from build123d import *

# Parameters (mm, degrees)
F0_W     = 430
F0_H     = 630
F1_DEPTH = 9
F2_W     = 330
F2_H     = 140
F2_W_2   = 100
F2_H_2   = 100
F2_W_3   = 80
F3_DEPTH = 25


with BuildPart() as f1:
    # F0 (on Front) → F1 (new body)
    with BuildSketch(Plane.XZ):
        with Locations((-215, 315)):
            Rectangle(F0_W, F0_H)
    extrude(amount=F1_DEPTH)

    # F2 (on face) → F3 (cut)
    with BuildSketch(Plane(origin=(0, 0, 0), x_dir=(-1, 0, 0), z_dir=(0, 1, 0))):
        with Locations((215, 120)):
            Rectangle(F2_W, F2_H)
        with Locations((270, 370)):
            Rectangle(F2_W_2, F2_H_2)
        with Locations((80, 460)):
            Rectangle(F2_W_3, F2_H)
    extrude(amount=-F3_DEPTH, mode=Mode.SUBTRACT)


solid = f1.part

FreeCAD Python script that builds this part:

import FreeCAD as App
import Part
import Sketcher


def add_polygon(sketch, points):
    """Adds a closed chain of lines whose ends are joined by coincident constraints."""
    first, n = sketch.GeometryCount, len(points)
    for a, b in zip(points, points[1:] + points[:1]):
        sketch.addGeometry(Part.LineSegment(App.Vector(*a, 0), App.Vector(*b, 0)), False)
    for i in range(n):
        sketch.addConstraint(Sketcher.Constraint("Coincident", first + i, 2, first + (i + 1) % n, 1))

doc = App.newDocument("Part")
params = doc.addObject("Spreadsheet::Sheet", "Params")
for row, (alias, value) in enumerate([
    ("sketch1_width", "430 mm"),
    ("sketch1_height", "630 mm"),
    ("pad1_length", "9 mm"),
    ("sketch2_width", "330 mm"),
    ("sketch2_width2", "100 mm"),
    ("sketch2_width3", "80 mm"),
    ("sketch2_height", "140 mm"),
    ("pocket1_length", "25 mm"),
], start=1):
    params.set(f"A{row}", alias)
    params.set(f"B{row}", "=" + value)
    params.setAlias(f"B{row}", alias)

body = doc.addObject("PartDesign::Body", "Body")

sketch1 = body.newObject("Sketcher::SketchObject", "Sketch")
sketch1.AttachmentSupport = (doc.getObject("XZ_Plane"), [""])
sketch1.MapMode = "FlatFace"
add_polygon(sketch1, [(-430, 630), (-430, 0), (0, 0), (0, 630)])
sketch1.addConstraint([
    Sketcher.Constraint("Vertical", 0),
    Sketcher.Constraint("Horizontal", 1),
    Sketcher.Constraint("Vertical", 2),
    Sketcher.Constraint("Horizontal", 3),
    Sketcher.Constraint("Coincident", 1, 2, -1, 1),
    Sketcher.Constraint("DistanceX", 1, 1, 1, 2, 430.0),
    Sketcher.Constraint("DistanceY", 0, 2, 0, 1, 630.0),
])
sketch1.setExpression("Constraints[9]", "Params.sketch1_width")
sketch1.setExpression("Constraints[10]", "Params.sketch1_height")
pad1 = body.newObject("PartDesign::Pad", "Pad")
pad1.Profile = sketch1
pad1.setExpression("Length", "Params.pad1_length")

sketch2 = body.newObject("Sketcher::SketchObject", "Sketch001")
sketch2.AttachmentSupport = (doc.getObject("XZ_Plane"), [""])
sketch2.MapMode = "FlatFace"
add_polygon(sketch2, [(-50, 190), (-50, 50), (-380, 50), (-380, 190)])
add_polygon(sketch2, [(-220, 420), (-220, 320), (-320, 320), (-320, 420)])
add_polygon(sketch2, [(-40, 530), (-40, 390), (-120, 390), (-120, 530)])
sketch2.addConstraint([
    Sketcher.Constraint("Vertical", 0),
    Sketcher.Constraint("Horizontal", 1),
    Sketcher.Constraint("Vertical", 2),
    Sketcher.Constraint("Horizontal", 3),
    Sketcher.Constraint("Vertical", 4),
    Sketcher.Constraint("Horizontal", 5),
    Sketcher.Constraint("Vertical", 6),
    Sketcher.Constraint("Horizontal", 7),
    Sketcher.Constraint("Vertical", 8),
    Sketcher.Constraint("Horizontal", 9),
    Sketcher.Constraint("Vertical", 10),
    Sketcher.Constraint("Horizontal", 11),
    Sketcher.Constraint("Equal", 7, 4),
    Sketcher.Constraint("Equal", 2, 8),
    Sketcher.Constraint("DistanceX", 1, 2, 1, 1, 330.0),
    Sketcher.Constraint("DistanceX", 5, 2, 5, 1, 100.0),
    Sketcher.Constraint("DistanceX", 9, 2, 9, 1, 80.0),
    Sketcher.Constraint("DistanceY", 0, 2, 0, 1, 140.0),
    Sketcher.Constraint("DistanceX", 0, 2, -1, 1, 50.0),
    Sketcher.Constraint("DistanceY", -1, 1, 0, 2, 50.0),
    Sketcher.Constraint("DistanceX", 4, 2, -1, 1, 220.0),
    Sketcher.Constraint("DistanceY", -1, 1, 4, 2, 320.0),
    Sketcher.Constraint("DistanceX", 8, 2, -1, 1, 40.0),
    Sketcher.Constraint("DistanceY", -1, 1, 8, 2, 390.0),
])
sketch2.setExpression("Constraints[26]", "Params.sketch2_width")
sketch2.setExpression("Constraints[27]", "Params.sketch2_width2")
sketch2.setExpression("Constraints[28]", "Params.sketch2_width3")
sketch2.setExpression("Constraints[29]", "Params.sketch2_height")
pocket1 = body.newObject("PartDesign::Pocket", "Pocket")
pocket1.Profile = sketch2
pocket1.setExpression("Length", "Params.pocket1_length")
pocket1.Reversed = True

doc.recompute()
